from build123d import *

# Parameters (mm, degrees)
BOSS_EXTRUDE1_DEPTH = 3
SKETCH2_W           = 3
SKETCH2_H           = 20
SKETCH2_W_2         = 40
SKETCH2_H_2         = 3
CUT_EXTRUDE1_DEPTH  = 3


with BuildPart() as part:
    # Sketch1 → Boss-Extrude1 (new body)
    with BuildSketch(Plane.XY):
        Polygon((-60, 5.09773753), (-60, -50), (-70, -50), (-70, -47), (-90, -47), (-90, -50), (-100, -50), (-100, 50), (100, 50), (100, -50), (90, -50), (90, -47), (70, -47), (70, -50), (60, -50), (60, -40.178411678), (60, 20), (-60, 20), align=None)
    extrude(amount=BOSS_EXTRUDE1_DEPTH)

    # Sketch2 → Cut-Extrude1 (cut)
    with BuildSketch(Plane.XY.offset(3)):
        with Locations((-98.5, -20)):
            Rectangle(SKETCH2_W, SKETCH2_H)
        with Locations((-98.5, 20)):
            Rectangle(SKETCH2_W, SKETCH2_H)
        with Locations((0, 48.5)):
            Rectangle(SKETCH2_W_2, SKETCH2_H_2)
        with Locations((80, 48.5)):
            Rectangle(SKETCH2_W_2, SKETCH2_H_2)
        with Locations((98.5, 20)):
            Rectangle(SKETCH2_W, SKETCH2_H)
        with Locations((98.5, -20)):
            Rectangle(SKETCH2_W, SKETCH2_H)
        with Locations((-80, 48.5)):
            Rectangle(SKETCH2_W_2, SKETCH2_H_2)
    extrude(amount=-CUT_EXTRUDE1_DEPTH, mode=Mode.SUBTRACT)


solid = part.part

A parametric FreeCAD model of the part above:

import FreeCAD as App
import Part
import Sketcher

V = App.Vector

doc = App.newDocument("Part")
params = doc.addObject("Spreadsheet::Sheet", "Params")
for row, (alias, value) in enumerate([
    ("sketch1_width", "120 mm"),
    ("sketch1_width2", "10 mm"),
    ("sketch1_width3", "20 mm"),
    ("sketch1_height", "70 mm"),
    ("sketch1_height2", "3 mm"),
    ("pad1_length", "3 mm"),
    ("sketch2_width", "3 mm"),
    ("sketch2_width2", "40 mm"),
    ("sketch2_height", "20 mm"),
    ("pocket1_length", "3 mm"),
], start=1):
    params.set(f"A{row}", alias)
    params.set(f"B{row}", "=" + value)
    params.setAlias(f"B{row}", alias)

body = doc.addObject("PartDesign::Body", "Body")

sketch1 = body.newObject("Sketcher::SketchObject", "Sketch")
sketch1.AttachmentSupport = (doc.getObject("XY_Plane"), [""])
sketch1.MapMode = "FlatFace"
sketch1.addGeometry([
    Part.LineSegment(V(-60, -50, 0), V(-60, 20, 0)),
    Part.LineSegment(V(-60, 20, 0), V(60, 20, 0)),
    Part.LineSegment(V(60, 20, 0), V(60, -50, 0)),
    Part.LineSegment(V(60, -50, 0), V(70, -50, 0)),
    Part.LineSegment(V(70, -50, 0), V(70, -47, 0)),
    Part.LineSegment(V(70, -47, 0), V(90, -47, 0)),
    Part.LineSegment(V(90, -47, 0), V(90, -50, 0)),
    Part.LineSegment(V(90, -50, 0), V(100, -50, 0)),
    Part.LineSegment(V(100, -50, 0), V(100, 50, 0)),
    Part.LineSegment(V(100, 50, 0), V(-100, 50, 0)),
    Part.LineSegment(V(-100, 50, 0), V(-100, -50, 0)),
    Part.LineSegment(V(-100, -50, 0), V(-90, -50, 0)),
    Part.LineSegment(V(-90, -50, 0), V(-90, -47, 0)),
    Part.LineSegment(V(-90, -47, 0), V(-70, -47, 0)),
    Part.LineSegment(V(-70, -47, 0), V(-70, -50, 0)),
    Part.LineSegment(V(-70, -50, 0), V(-60, -50, 0)),
], False)
sketch1.addConstraint([
    Sketcher.Constraint("Coincident", 0, 2, 1, 1),
    Sketcher.Constraint("Coincident", 1, 2, 2, 1),
    Sketcher.Constraint("Coincident", 2, 2, 3, 1),
    Sketcher.Constraint("Coincident", 3, 2, 4, 1),
    Sketcher.Constraint("Coincident", 4, 2, 5, 1),
    Sketcher.Constraint("Coincident", 5, 2, 6, 1),
    Sketcher.Constraint("Coincident", 6, 2, 7, 1),
    Sketcher.Constraint("Coincident", 7, 2, 8, 1),
    Sketcher.Constraint("Coincident", 8, 2, 9, 1),
    Sketcher.Constraint("Coincident", 9, 2, 10, 1),
    Sketcher.Constraint("Coincident", 10, 2, 11, 1),
    Sketcher.Constraint("Coincident", 11, 2, 12, 1),
    Sketcher.Constraint("Coincident", 12, 2, 13, 1),
    Sketcher.Constraint("Coincident", 13, 2, 14, 1),
    Sketcher.Constraint("Coincident", 14, 2, 15, 1),
    Sketcher.Constraint("Coincident", 15, 2, 0, 1),
    Sketcher.Constraint("Vertical", 0),
    Sketcher.Constraint("Horizontal", 1),
    Sketcher.Constraint("Vertical", 2),
    Sketcher.Constraint("Horizontal", 3),
    Sketcher.Constraint("Vertical", 4),
    Sketcher.Constraint("Horizontal", 5),
    Sketcher.Constraint("Vertical", 6),
    Sketcher.Constraint("Horizontal", 7),
    Sketcher.Constraint("Vertical", 8),
    Sketcher.Constraint("Horizontal", 9),
    Sketcher.Constraint("Vertical", 10),
    Sketcher.Constraint("Horizontal", 11),
    Sketcher.Constraint("Vertical", 12),
    Sketcher.Constraint("Horizontal", 13),
    Sketcher.Constraint("Vertical", 14),
    Sketcher.Constraint("Horizontal", 15),
    Sketcher.Constraint("Symmetric", 7, 2, 9, 2, -1, 1),
    Sketcher.Constraint("Symmetric", 6, 2, 11, 2, -2),
    Sketcher.Constraint("Symmetric", 4, 2, 13, 2, -2),
    Sketcher.Constraint("Symmetric", 2, 2, 15, 2, -2),
    Sketcher.Constraint("Horizontal", 3, 2, 6, 2),
    Sketcher.Constraint("Equal", 3, 7),
    Sketcher.Constraint("DistanceX", 1, 1, 1, 2, 120.0),
    Sketcher.Constraint("DistanceX", 3, 1, 3, 2, 10.0),
    Sketcher.Constraint("DistanceX", 5, 1, 5, 2, 20.0),
    Sketcher.Constraint("DistanceY", 0, 1, 0, 2, 70.0),
    Sketcher.Constraint("DistanceY", 4, 1, 4, 2, 3.0),
    Sketcher.Constraint("DistanceY", 8, 1, 8, 2, 100.0),
])
sketch1.setExpression("Constraints[38]", "Params.sketch1_width")
sketch1.setExpression("Constraints[39]", "Params.sketch1_width2")
sketch1.setExpression("Constraints[40]", "Params.sketch1_width3")
sketch1.setExpression("Constraints[41]", "Params.sketch1_height")
sketch1.setExpression("Constraints[42]", "Params.sketch1_height2")
pad1 = body.newObject("PartDesign::Pad", "Pad")
pad1.Profile = sketch1
pad1.setExpression("Length", "Params.pad1_length")

sketch2 = body.newObject("Sketcher::SketchObject", "Sketch001")
sketch2.AttachmentSupport = (doc.getObject("XY_Plane"), [""])
sketch2.MapMode = "FlatFace"
sketch2.AttachmentOffset = App.Placement(V(0, 0, 3), App.Rotation())
sketch2.addGeometry([
    Part.LineSegment(V(-100, -10, 0), V(-100, -30, 0)),
    Part.LineSegment(V(-100, -30, 0), V(-97, -30, 0)),
    Part.LineSegment(V(-97, -30, 0), V(-97, -10, 0)),
    Part.LineSegment(V(-97, -10, 0), V(-100, -10, 0)),
    Part.LineSegment(V(-100, 30, 0), V(-100, 10, 0)),
    Part.LineSegment(V(-100, 10, 0), V(-97, 10, 0)),
    Part.LineSegment(V(-97, 10, 0), V(-97, 30, 0)),
    Part.LineSegment(V(-97, 30, 0), V(-100, 30, 0)),
    Part.LineSegment(V(-20, 50, 0), V(-20, 47, 0)),
    Part.LineSegment(V(-20, 47, 0), V(20, 47, 0)),
    Part.LineSegment(V(20, 47, 0), V(20, 50, 0)),
    Part.LineSegment(V(20, 50, 0), V(-20, 50, 0)),
    Part.LineSegment(V(60, 50, 0), V(60, 47, 0)),
    Part.LineSegment(V(60, 47, 0), V(100, 47, 0)),
    Part.LineSegment(V(100, 47, 0), V(100, 50, 0)),
    Part.LineSegment(V(100, 50, 0), V(60, 50, 0)),
    Part.LineSegment(V(97, 30, 0), V(97, 10, 0)),
    Part.LineSegment(V(97, 10, 0), V(100, 10, 0)),
    Part.LineSegment(V(100, 10, 0), V(100, 30, 0)),
    Part.LineSegment(V(100, 30, 0), V(97, 30, 0)),
    Part.LineSegment(V(97, -10, 0), V(97, -30, 0)),
    Part.LineSegment(V(97, -30, 0), V(100, -30, 0)),
    Part.LineSegment(V(100, -30, 0), V(100, -10, 0)),
    Part.LineSegment(V(100, -10, 0), V(97, -10, 0)),
    Part.LineSegment(V(-100, 50, 0), V(-100, 47, 0)),
    Part.LineSegment(V(-100, 47, 0), V(-60, 47, 0)),
    Part.LineSegment(V(-60, 47, 0), V(-60, 50, 0)),
    Part.LineSegment(V(-60, 50, 0), V(-100, 50, 0)),
], False)
sketch2.addConstraint([
    Sketcher.Constraint("Coincident", 0, 2, 1, 1),
    Sketcher.Constraint("Coincident", 1, 2, 2, 1),
    Sketcher.Constraint("Coincident", 2, 2, 3, 1),
    Sketcher.Constraint("Coincident", 3, 2, 0, 1),
    Sketcher.Constraint("Coincident", 4, 2, 5, 1),
    Sketcher.Constraint("Coincident", 5, 2, 6, 1),
    Sketcher.Constraint("Coincident", 6, 2, 7, 1),
    Sketcher.Constraint("Coincident", 7, 2, 4, 1),
    Sketcher.Constraint("Coincident", 8, 2, 9, 1),
    Sketcher.Constraint("Coincident", 9, 2, 10, 1),
    Sketcher.Constraint("Coincident", 10, 2, 11, 1),
    Sketcher.Constraint("Coincident", 11, 2, 8, 1),
    Sketcher.Constraint("Coincident", 12, 2, 13, 1),
    Sketcher.Constraint("Coincident", 13, 2, 14, 1),
    Sketcher.Constraint("Coincident", 14, 2, 15, 1),
    Sketcher.Constraint("Coincident", 15, 2, 12, 1),
    Sketcher.Constraint("Coincident", 16, 2, 17, 1),
    Sketcher.Constraint("Coincident", 17, 2, 18, 1),
    Sketcher.Constraint("Coincident", 18, 2, 19, 1),
    Sketcher.Constraint("Coincident", 19, 2, 16, 1),
    Sketcher.Constraint("Coincident", 20, 2, 21, 1),
    Sketcher.Constraint("Coincident", 21, 2, 22, 1),
    Sketcher.Constraint("Coincident", 22, 2, 23, 1),
    Sketcher.Constraint("Coincident", 23, 2, 20, 1),
    Sketcher.Constraint("Coincident", 24, 2, 25, 1),
    Sketcher.Constraint("Coincident", 25, 2, 26, 1),
    Sketcher.Constraint("Coincident", 26, 2, 27, 1),
    Sketcher.Constraint("Coincident", 27, 2, 24, 1),
    Sketcher.Constraint("Vertical", 0),
    Sketcher.Constraint("Horizontal", 1),
    Sketcher.Constraint("Vertical", 2),
    Sketcher.Constraint("Horizontal", 3),
    Sketcher.Constraint("Vertical", 4),
    Sketcher.Constraint("Horizontal", 5),
    Sketcher.Constraint("Vertical", 6),
    Sketcher.Constraint("Horizontal", 7),
    Sketcher.Constraint("Vertical", 8),
    Sketcher.Constraint("Horizontal", 9),
    Sketcher.Constraint("Vertical", 10),
    Sketcher.Constraint("Horizontal", 11),
    Sketcher.Constraint("Vertical", 12),
    Sketcher.Constraint("Horizontal", 13),
    Sketcher.Constraint("Vertical", 14),
    Sketcher.Constraint("Horizontal", 15),
    Sketcher.Constraint("Vertical", 16),
    Sketcher.Constraint("Horizontal", 17),
    Sketcher.Constraint("Vertical", 18),
    Sketcher.Constraint("Horizontal", 19),
    Sketcher.Constraint("Vertical", 20),
    Sketcher.Constraint("Horizontal", 21),
    Sketcher.Constraint("Vertical", 22),
    Sketcher.Constraint("Horizontal", 23),
    Sketcher.Constraint("Vertical", 24),
    Sketcher.Constraint("Horizontal", 25),
    Sketcher.Constraint("Vertical", 26),
    Sketcher.Constraint("Horizontal", 27),
    Sketcher.Constraint("Symmetric", 2, 2, 16, 2, -1, 1),
    Sketcher.Constraint("Symmetric", 0, 2, 18, 2, -1, 1),
    Sketcher.Constraint("Symmetric", 6, 2, 20, 2, -1, 1),
    Sketcher.Constraint("Symmetric", 4, 2, 22, 2, -1, 1),
    Sketcher.Constraint("Symmetric", 5, 2, 16, 2, -2),
    Sketcher.Constraint("Symmetric", 7, 2, 18, 2, -2),
    Sketcher.Constraint("Symmetric", 13, 2, 24, 2, -2),
    Sketcher.Constraint("Symmetric", 15, 2, 26, 2, -2),
    Sketcher.Constraint("Horizontal", 9, 2, 12, 2),
    Sketcher.Constraint("Horizontal", 11, 2, 14, 2),
    Sketcher.Constraint("Vertical", 14, 2, 17, 2),
    Sketcher.Constraint("Equal", 11, 13),
    Sketcher.Constraint("Equal", 23, 8),
    Sketcher.Constraint("DistanceX", 1, 1, 1, 2, 3.0),
    Sketcher.Constraint("DistanceX", 9, 1, 9, 2, 40.0),
    Sketcher.Constraint("DistanceY", 0, 2, 0, 1, 20.0),
    Sketcher.Constraint("DistanceX", 0, 2, -1, 1, 100.0),
    Sketcher.Constraint("DistanceY", 0, 2, -1, 1, 30.0),
    Sketcher.Constraint("DistanceX", 8, 2, -1, 1, 20.0),
    Sketcher.Constraint("DistanceY", -1, 1, 8, 2, 47.0),
])
sketch2.setExpression("Constraints[69]", "Params.sketch2_width")
sketch2.setExpression("Constraints[70]", "Params.sketch2_width2")
sketch2.setExpression("Constraints[71]", "Params.sketch2_height")
pocket1 = body.newObject("PartDesign::Pocket", "Pocket")
pocket1.Profile = sketch2
pocket1.setExpression("Length", "Params.pocket1_length")

doc.recompute()
